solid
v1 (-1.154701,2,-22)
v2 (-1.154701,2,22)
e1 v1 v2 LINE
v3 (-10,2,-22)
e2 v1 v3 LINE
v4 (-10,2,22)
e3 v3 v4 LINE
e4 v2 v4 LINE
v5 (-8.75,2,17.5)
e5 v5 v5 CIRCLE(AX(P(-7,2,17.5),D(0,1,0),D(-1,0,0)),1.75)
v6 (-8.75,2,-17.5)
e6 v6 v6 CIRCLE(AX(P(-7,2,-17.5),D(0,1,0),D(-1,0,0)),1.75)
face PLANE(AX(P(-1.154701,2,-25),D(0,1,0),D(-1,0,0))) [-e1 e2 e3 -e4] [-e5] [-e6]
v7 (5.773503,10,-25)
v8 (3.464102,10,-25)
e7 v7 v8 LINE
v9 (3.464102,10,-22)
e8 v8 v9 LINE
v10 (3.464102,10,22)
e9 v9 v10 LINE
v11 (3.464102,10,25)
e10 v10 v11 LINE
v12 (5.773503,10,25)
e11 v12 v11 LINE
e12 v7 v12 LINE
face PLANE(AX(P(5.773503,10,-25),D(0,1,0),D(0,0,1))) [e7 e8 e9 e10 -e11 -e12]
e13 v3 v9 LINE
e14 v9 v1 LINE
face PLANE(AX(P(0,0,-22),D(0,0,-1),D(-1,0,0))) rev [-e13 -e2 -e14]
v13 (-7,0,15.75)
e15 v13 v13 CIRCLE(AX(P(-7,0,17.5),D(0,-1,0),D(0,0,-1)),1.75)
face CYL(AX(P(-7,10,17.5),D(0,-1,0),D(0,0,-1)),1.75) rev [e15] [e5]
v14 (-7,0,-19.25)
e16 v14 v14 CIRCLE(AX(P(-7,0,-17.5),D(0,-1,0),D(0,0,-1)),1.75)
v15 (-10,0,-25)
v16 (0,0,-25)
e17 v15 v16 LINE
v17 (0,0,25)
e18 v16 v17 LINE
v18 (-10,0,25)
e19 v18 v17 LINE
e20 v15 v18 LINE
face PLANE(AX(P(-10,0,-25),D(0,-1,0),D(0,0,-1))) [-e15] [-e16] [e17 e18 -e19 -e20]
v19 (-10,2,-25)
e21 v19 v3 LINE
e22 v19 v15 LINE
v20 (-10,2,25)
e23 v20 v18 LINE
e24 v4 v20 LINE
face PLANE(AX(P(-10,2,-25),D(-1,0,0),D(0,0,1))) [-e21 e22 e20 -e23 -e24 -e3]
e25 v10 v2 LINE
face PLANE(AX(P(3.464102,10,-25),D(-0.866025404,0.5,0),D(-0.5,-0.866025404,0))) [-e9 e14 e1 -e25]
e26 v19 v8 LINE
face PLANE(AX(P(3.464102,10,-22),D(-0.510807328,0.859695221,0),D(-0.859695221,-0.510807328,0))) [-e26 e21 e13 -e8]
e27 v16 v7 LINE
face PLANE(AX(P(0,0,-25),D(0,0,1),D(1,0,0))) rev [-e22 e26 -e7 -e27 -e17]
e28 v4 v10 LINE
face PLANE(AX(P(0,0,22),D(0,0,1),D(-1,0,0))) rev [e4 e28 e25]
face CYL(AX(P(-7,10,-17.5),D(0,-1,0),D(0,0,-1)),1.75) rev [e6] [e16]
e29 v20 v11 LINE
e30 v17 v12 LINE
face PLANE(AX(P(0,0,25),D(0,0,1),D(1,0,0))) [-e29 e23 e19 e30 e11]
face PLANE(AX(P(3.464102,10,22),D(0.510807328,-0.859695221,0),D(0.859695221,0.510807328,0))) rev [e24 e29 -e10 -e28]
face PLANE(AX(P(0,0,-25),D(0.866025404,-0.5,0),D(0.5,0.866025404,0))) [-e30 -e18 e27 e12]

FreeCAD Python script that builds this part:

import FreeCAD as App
import Part
import Sketcher
from FreeCAD import Vector
Q = App.Units.Quantity


def add_polygon(sketch, points):
    """Adds a closed chain of lines whose ends are joined by coincident constraints."""
    first, n = sketch.GeometryCount, len(points)
    for a, b in zip(points, points[1:] + points[:1]):
        sketch.addGeometry(Part.LineSegment(App.Vector(*a, 0), App.Vector(*b, 0)), False)
    for i in range(n):
        sketch.addConstraint(Sketcher.Constraint("Coincident", first + i, 2, first + (i + 1) % n, 1))

doc = App.newDocument("Part")
params = doc.addObject("Spreadsheet::Sheet", "Params")
for row, (alias, value) in enumerate([
    ("sketch1_width", "10 mm"),
    ("sketch1_height", "2 mm"),
    ("pad1_length", "25 mm"),
    ("pad1_length2", "25 mm"),
    ("sketch2_diameter", "3.5 mm"),
    ("pad2_length", "3 mm"),
], start=1):
    params.set(f"A{row}", alias)
    params.set(f"B{row}", "=" + value)
    params.setAlias(f"B{row}", alias)

body = doc.addObject("PartDesign::Body", "Body")

# Sketch on XY plane
sketch1 = doc.addObject("Sketcher::SketchObject", "Sketch")
body.addObject(sketch1)
sketch1.AttachmentSupport = (doc.XY_Plane, [""])
sketch1.MapMode = "FlatFace"
add_polygon(sketch1, [(-10, 0), (0, 0), (5.8, 10), (3.5, 10), (-1.2, 2), (-10, 2)])  # lines 0-5
sketch1.addConstraint([
    Sketcher.Constraint("Horizontal", 0),
    Sketcher.Constraint("Horizontal", 2),
    Sketcher.Constraint("Horizontal", 4),
    Sketcher.Constraint("Vertical", 5),
    Sketcher.Constraint("Coincident", 0, 2, -1, 1),
    Sketcher.Constraint("Parallel", 1, 3),
    Sketcher.Constraint("DistanceX", 0, 1, 0, 2, Q("10 mm")),
    Sketcher.Constraint("DistanceY", 5, 2, 5, 1, Q("2 mm")),
    Sketcher.Constraint("Angle", 1, Q("60 deg")),
    Sketcher.Constraint("DistanceY", -1, 1, 1, 2, Q("10 mm")),
    Sketcher.Constraint("DistanceX", 2, 2, 2, 1, Q("2.309401 mm")),
])
sketch1.setExpression("Constraints[12]", "Params.sketch1_width")
sketch1.setExpression("Constraints[13]", "Params.sketch1_height")
pad1 = doc.addObject("PartDesign::Pad", "Pad")
body.addObject(pad1)
pad1.Profile = sketch1
pad1.Type = "TwoLengths"
pad1.setExpression("Length", "Params.pad1_length")
pad1.setExpression("Length2", "Params.pad1_length2")

# Sketch on XZ plane
sketch2 = doc.addObject("Sketcher::SketchObject", "Sketch001")
body.addObject(sketch2)
sketch2.AttachmentSupport = (doc.XZ_Plane, [""])
sketch2.MapMode = "FlatFace"
sketch2.addGeometry([
    Part.Circle(Vector(-7, 17.5, 0), Vector(0, 0, 1), 1.8),
    Part.Circle(Vector(-7, -17.5, 0), Vector(0, 0, 1), 1.8),
], False)
sketch2.addConstraint([
    Sketcher.Constraint("Equal", 0, 1),
    Sketcher.Constraint("Symmetric", 0, 3, 1, 3, -1),
    Sketcher.Constraint("Diameter", 0, Q("3.5 mm")),
    Sketcher.Constraint("DistanceX", 0, 3, -1, 1, Q("7 mm")),
    Sketcher.Constraint("DistanceY", 1, 3, 0, 3, Q("35 mm")),
])
sketch2.setExpression("Constraints[2]", "Params.sketch2_diameter")
pocket1 = doc.addObject("PartDesign::Pocket", "Pocket")
body.addObject(pocket1)
pocket1.Profile = sketch2
pocket1.Type = "ThroughAll"

# Sketch on XY plane
sketch3 = doc.addObject("Sketcher::SketchObject", "Sketch002")
body.addObject(sketch3)
sketch3.AttachmentSupport = (doc.XY_Plane, [""])
sketch3.MapMode = "FlatFace"
sketch3.AttachmentOffset = App.Placement(Vector(0, 0, -25), App.Rotation())
add_polygon(sketch3, [(-10, 2), (3, 10), (-1, 2)])  # lines 0-2
sketch3.addConstraint([
    Sketcher.Constraint("Horizontal", 2),
    Sketcher.Constraint("Angle", 1, Q("-120 deg")),
    Sketcher.Constraint("DistanceY", -1, 1, 0, 2, Q("10 mm")),
    Sketcher.Constraint("DistanceY", -1, 1, 1, 2, Q("2 mm")),
    Sketcher.Constraint("DistanceX", 2, 2, -1, 1, Q("10 mm")),
    Sketcher.Constraint("DistanceX", 2, 2, 2, 1, Q("8.845299 mm")),
])
pad2 = doc.addObject("PartDesign::Pad", "Pad001")
body.addObject(pad2)
pad2.Profile = sketch3
pad2.setExpression("Length", "Params.pad2_length")
doc.recompute()

mirrored = doc.addObject("PartDesign::Mirrored", "Mirrored")
body.addObject(mirrored)
mirrored.Originals = [pad2]
mirrored.MirrorPlane = (doc.XY_Plane, [""])
body.Tip = mirrored

doc.recompute()
